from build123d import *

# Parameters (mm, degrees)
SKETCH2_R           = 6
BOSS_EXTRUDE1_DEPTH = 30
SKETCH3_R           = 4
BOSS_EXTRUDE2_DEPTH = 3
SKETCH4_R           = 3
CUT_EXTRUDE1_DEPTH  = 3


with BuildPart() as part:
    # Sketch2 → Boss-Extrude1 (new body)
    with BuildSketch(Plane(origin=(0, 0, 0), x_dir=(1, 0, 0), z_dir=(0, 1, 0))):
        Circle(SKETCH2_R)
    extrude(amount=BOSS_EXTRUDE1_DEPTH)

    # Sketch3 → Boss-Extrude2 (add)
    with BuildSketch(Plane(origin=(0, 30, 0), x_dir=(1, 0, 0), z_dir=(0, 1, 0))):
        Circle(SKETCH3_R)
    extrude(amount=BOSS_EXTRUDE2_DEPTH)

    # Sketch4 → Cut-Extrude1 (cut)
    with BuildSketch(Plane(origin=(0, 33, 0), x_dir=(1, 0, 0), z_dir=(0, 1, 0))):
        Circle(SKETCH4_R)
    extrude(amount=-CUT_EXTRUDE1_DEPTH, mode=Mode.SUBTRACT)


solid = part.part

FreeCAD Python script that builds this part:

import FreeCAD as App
import Part
import Sketcher

V = App.Vector
Q = App.Units.Quantity

doc = App.newDocument("Part")
params = doc.addObject("Spreadsheet::Sheet", "Params")
for row, (alias, value) in enumerate([
    ("sketch1_diameter", "12 mm"),
    ("pad1_length", "30 mm"),
    ("sketch2_diameter", "8 mm"),
    ("pad2_length", "3 mm"),
    ("sketch3_diameter", "6 mm"),
    ("pocket1_length", "3 mm"),
], start=1):
    params.set(f"A{row}", alias)
    params.set(f"B{row}", "=" + value)
    params.setAlias(f"B{row}", alias)

body = doc.addObject("PartDesign::Body", "Body")

# Sketch on XZ plane
sketch1 = body.newObject("Sketcher::SketchObject", "Sketch")
sketch1.AttachmentSupport = (doc.getObject("XZ_Plane"), [""])
sketch1.MapMode = "FlatFace"
sketch1.addGeometry(Part.Circle(V(0, 0, 0), V(0, 0, 1), 6), False)
sketch1.addConstraint(Sketcher.Constraint("Coincident", 0, 3, -1, 1))
sketch1.addConstraint(Sketcher.Constraint("Diameter", 0, Q("12 mm")))
sketch1.setExpression("Constraints[1]", "Params.sketch1_diameter")
pad1 = body.newObject("PartDesign::Pad", "Pad")
pad1.Profile = sketch1
pad1.setExpression("Length", "Params.pad1_length")
pad1.Reversed = True

# Sketch on XZ plane
sketch2 = body.newObject("Sketcher::SketchObject", "Sketch001")
sketch2.AttachmentSupport = (doc.getObject("XZ_Plane"), [""])
sketch2.MapMode = "FlatFace"
sketch2.AttachmentOffset = App.Placement(V(0, 0, -30), App.Rotation())
sketch2.addGeometry(Part.Circle(V(0, 0, 0), V(0, 0, 1), 4), False)
sketch2.addConstraint(Sketcher.Constraint("Coincident", 0, 3, -1, 1))
sketch2.addConstraint(Sketcher.Constraint("Diameter", 0, Q("8 mm")))
sketch2.setExpression("Constraints[1]", "Params.sketch2_diameter")
pad2 = body.newObject("PartDesign::Pad", "Pad001")
pad2.Profile = sketch2
pad2.setExpression("Length", "Params.pad2_length")
pad2.Reversed = True

# Sketch on XZ plane
sketch3 = body.newObject("Sketcher::SketchObject", "Sketch002")
sketch3.AttachmentSupport = (doc.getObject("XZ_Plane"), [""])
sketch3.MapMode = "FlatFace"
sketch3.AttachmentOffset = App.Placement(V(0, 0, -33), App.Rotation())
sketch3.addGeometry(Part.Circle(V(0, 0, 0), V(0, 0, 1), 3), False)
sketch3.addConstraint(Sketcher.Constraint("Coincident", 0, 3, -1, 1))
sketch3.addConstraint(Sketcher.Constraint("Diameter", 0, Q("6 mm")))
sketch3.setExpression("Constraints[1]", "Params.sketch3_diameter")
pocket1 = body.newObject("PartDesign::Pocket", "Pocket")
pocket1.Profile = sketch3
pocket1.setExpression("Length", "Params.pocket1_length")
pocket1.Reversed = True

doc.recompute()
